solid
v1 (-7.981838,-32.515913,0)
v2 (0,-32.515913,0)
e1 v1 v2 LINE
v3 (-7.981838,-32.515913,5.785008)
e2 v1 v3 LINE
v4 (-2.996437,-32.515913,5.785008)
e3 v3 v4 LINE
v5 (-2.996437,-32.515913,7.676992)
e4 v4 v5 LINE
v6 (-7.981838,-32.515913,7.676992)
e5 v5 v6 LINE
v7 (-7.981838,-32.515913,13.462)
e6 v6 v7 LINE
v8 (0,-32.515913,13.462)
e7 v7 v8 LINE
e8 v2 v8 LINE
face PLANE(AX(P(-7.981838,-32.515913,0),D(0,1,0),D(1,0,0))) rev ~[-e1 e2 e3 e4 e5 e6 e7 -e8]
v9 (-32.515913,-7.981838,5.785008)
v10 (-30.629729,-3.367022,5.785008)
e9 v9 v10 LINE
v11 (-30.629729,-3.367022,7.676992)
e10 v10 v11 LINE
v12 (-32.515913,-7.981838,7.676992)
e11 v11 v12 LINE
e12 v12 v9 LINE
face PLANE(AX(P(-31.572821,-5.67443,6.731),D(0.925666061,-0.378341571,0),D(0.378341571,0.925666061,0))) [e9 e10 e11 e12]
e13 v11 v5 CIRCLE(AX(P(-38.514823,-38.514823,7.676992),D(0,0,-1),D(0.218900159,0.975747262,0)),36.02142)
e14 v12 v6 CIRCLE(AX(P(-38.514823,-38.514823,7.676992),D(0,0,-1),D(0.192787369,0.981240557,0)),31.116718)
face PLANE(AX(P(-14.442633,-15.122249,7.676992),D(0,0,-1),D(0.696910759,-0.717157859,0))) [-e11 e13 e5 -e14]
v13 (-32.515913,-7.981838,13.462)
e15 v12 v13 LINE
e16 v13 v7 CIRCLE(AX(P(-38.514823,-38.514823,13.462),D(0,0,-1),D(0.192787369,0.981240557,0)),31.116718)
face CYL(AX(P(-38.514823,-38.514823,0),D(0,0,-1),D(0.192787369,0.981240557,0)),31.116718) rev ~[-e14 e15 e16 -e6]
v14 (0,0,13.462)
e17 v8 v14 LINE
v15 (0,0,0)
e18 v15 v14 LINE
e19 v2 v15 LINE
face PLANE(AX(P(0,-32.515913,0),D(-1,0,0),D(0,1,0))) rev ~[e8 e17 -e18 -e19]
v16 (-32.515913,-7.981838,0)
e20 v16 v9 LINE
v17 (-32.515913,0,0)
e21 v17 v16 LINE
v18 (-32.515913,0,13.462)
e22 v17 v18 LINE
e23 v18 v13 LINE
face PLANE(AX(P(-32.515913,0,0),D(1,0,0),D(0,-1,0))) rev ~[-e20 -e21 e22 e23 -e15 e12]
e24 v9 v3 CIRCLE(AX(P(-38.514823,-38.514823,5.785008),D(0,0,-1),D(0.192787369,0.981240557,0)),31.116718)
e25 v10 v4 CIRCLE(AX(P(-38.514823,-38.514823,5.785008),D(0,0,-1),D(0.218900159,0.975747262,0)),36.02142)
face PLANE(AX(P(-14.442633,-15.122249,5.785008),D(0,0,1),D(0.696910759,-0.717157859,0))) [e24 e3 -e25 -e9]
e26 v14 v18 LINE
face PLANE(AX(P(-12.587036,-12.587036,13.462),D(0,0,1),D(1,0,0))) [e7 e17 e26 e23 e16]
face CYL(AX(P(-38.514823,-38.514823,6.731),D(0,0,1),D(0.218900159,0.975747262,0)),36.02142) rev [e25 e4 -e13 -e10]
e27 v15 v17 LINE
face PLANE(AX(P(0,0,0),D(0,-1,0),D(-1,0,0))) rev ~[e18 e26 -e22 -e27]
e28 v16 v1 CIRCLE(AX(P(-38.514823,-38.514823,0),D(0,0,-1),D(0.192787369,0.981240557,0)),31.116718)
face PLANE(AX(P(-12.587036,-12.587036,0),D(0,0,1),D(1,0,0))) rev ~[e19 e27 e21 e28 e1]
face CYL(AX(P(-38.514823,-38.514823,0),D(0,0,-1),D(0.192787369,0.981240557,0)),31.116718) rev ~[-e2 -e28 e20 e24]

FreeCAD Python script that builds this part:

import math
import FreeCAD as App
import Part
import Sketcher

V = App.Vector
Q = App.Units.Quantity


def add_polygon(sketch, points):
    """Adds a closed chain of lines whose ends are joined by coincident constraints."""
    first, n = sketch.GeometryCount, len(points)
    for a, b in zip(points, points[1:] + points[:1]):
        sketch.addGeometry(Part.LineSegment(App.Vector(*a, 0), App.Vector(*b, 0)), False)
    for i in range(n):
        sketch.addConstraint(Sketcher.Constraint("Coincident", first + i, 2, first + (i + 1) % n, 1))

doc = App.newDocument("Part")
body = doc.addObject("PartDesign::Body", "Body")

# Sketch on XY plane
sketch1 = body.newObject("Sketcher::SketchObject", "Sketch")
sketch1.AttachmentSupport = (doc.getObject("XY_Plane"), [""])
sketch1.MapMode = "FlatFace"
sketch1.addGeometry(Part.LineSegment(V(0, 0, 0), V(-33, 0, 0)), False)
sketch1.addGeometry(Part.LineSegment(V(-33, 0, 0), V(-33, -8, 0)), False)
sketch1.addGeometry(Part.ArcOfCircle(Part.Circle(V(-39, -39, 0), V(0, 0, 1), 31), math.radians(11), math.radians(79)), False)
sketch1.addGeometry(Part.LineSegment(V(-8, -33, 0), V(0, -33, 0)), False)
sketch1.addGeometry(Part.LineSegment(V(0, -33, 0), V(0, 0, 0)), False)
sketch1.addConstraint(Sketcher.Constraint("Coincident", 0, 2, 1, 1))
sketch1.addConstraint(Sketcher.Constraint("Coincident", 1, 2, 2, 2))
sketch1.addConstraint(Sketcher.Constraint("Coincident", 2, 1, 3, 1))
sketch1.addConstraint(Sketcher.Constraint("Coincident", 3, 2, 4, 1))
sketch1.addConstraint(Sketcher.Constraint("Coincident", 4, 2, 0, 1))
sketch1.addConstraint(Sketcher.Constraint("Horizontal", 0))
sketch1.addConstraint(Sketcher.Constraint("Vertical", 1))
sketch1.addConstraint(Sketcher.Constraint("Horizontal", 3))
sketch1.addConstraint(Sketcher.Constraint("Vertical", 4))
sketch1.addConstraint(Sketcher.Constraint("Coincident", 4, 2, -1, 1))
sketch1.addConstraint(Sketcher.Constraint("Equal", 3, 1))
sketch1.addConstraint(Sketcher.Constraint("Equal", 0, 4))
sketch1.addConstraint(Sketcher.Constraint("Radius", 2, Q("31.116718 mm")))
sketch1.addConstraint(Sketcher.Constraint("DistanceX", 0, 2, 0, 1, Q("32.515913 mm")))
sketch1.addConstraint(Sketcher.Constraint("DistanceX", 3, 1, 3, 2, Q("7.981838 mm")))
pad1 = body.newObject("PartDesign::Pad", "Pad")
pad1.Profile = sketch1
pad1.Length = Q("0.53 in")

# Sketch on XZ plane
sketch2 = body.newObject("Sketcher::SketchObject", "Sketch001")
sketch2.AttachmentSupport = (doc.getObject("XZ_Plane"), [""])
sketch2.MapMode = "FlatFace"
sketch2.AttachmentOffset = App.Placement(V(0, 0, 32.515913), App.Rotation())
add_polygon(sketch2, [(-8, 7.7), (-8, 5.8), (-3, 5.8), (-3, 7.7)])  # lines 0-3
sketch2.addConstraint(Sketcher.Constraint("Vertical", 0))
sketch2.addConstraint(Sketcher.Constraint("Horizontal", 1))
sketch2.addConstraint(Sketcher.Constraint("Vertical", 2))
sketch2.addConstraint(Sketcher.Constraint("Horizontal", 3))
sketch2.addConstraint(Sketcher.Constraint("DistanceX", 1, 1, 1, 2, Q("4.985401 mm")))
sketch2.addConstraint(Sketcher.Constraint("DistanceY", 0, 2, 0, 1, Q("1.891983 mm")))
sketch2.addConstraint(Sketcher.Constraint("DistanceY", -1, 1, 0, 2, Q("5.785008 mm")))
sketch2.addConstraint(Sketcher.Constraint("DistanceX", 0, 2, -1, 1, Q("7.981838 mm")))

# Sketch on XY plane
sketch3 = body.newObject("Sketcher::SketchObject", "Sketch002")
sketch3.AttachmentSupport = (doc.getObject("XY_Plane"), [""])
sketch3.MapMode = "FlatFace"
sketch3.AttachmentOffset = App.Placement(V(0, 0, 0.53 * 25.4), App.Rotation())
sketch3.addGeometry(Part.ArcOfCircle(Part.Circle(V(-39, -39, 0), V(0, 0, 1), 31), math.radians(11), math.radians(79)), False)
sketch3.addConstraint(Sketcher.Constraint("Radius", 0, Q("31.116718 mm")))
sketch3.addConstraint(Sketcher.Constraint("DistanceY", 0, 3, 0, 1, Q("5.99891 mm")))
sketch3.addConstraint(Sketcher.Constraint("DistanceX", 0, 3, 0, 2, Q("5.99891 mm")))
sketch3.addConstraint(Sketcher.Constraint("DistanceX", 0, 3, -1, 1, Q("38.514823 mm")))
sketch3.addConstraint(Sketcher.Constraint("DistanceY", 0, 3, -1, 1, Q("38.514823 mm")))
doc.recompute()

subtractivepipe = body.newObject("PartDesign::SubtractivePipe", "SubtractivePipe")
subtractivepipe.Profile = sketch2
subtractivepipe.Spine = (sketch3, ["Edge1"])

doc.recompute()
